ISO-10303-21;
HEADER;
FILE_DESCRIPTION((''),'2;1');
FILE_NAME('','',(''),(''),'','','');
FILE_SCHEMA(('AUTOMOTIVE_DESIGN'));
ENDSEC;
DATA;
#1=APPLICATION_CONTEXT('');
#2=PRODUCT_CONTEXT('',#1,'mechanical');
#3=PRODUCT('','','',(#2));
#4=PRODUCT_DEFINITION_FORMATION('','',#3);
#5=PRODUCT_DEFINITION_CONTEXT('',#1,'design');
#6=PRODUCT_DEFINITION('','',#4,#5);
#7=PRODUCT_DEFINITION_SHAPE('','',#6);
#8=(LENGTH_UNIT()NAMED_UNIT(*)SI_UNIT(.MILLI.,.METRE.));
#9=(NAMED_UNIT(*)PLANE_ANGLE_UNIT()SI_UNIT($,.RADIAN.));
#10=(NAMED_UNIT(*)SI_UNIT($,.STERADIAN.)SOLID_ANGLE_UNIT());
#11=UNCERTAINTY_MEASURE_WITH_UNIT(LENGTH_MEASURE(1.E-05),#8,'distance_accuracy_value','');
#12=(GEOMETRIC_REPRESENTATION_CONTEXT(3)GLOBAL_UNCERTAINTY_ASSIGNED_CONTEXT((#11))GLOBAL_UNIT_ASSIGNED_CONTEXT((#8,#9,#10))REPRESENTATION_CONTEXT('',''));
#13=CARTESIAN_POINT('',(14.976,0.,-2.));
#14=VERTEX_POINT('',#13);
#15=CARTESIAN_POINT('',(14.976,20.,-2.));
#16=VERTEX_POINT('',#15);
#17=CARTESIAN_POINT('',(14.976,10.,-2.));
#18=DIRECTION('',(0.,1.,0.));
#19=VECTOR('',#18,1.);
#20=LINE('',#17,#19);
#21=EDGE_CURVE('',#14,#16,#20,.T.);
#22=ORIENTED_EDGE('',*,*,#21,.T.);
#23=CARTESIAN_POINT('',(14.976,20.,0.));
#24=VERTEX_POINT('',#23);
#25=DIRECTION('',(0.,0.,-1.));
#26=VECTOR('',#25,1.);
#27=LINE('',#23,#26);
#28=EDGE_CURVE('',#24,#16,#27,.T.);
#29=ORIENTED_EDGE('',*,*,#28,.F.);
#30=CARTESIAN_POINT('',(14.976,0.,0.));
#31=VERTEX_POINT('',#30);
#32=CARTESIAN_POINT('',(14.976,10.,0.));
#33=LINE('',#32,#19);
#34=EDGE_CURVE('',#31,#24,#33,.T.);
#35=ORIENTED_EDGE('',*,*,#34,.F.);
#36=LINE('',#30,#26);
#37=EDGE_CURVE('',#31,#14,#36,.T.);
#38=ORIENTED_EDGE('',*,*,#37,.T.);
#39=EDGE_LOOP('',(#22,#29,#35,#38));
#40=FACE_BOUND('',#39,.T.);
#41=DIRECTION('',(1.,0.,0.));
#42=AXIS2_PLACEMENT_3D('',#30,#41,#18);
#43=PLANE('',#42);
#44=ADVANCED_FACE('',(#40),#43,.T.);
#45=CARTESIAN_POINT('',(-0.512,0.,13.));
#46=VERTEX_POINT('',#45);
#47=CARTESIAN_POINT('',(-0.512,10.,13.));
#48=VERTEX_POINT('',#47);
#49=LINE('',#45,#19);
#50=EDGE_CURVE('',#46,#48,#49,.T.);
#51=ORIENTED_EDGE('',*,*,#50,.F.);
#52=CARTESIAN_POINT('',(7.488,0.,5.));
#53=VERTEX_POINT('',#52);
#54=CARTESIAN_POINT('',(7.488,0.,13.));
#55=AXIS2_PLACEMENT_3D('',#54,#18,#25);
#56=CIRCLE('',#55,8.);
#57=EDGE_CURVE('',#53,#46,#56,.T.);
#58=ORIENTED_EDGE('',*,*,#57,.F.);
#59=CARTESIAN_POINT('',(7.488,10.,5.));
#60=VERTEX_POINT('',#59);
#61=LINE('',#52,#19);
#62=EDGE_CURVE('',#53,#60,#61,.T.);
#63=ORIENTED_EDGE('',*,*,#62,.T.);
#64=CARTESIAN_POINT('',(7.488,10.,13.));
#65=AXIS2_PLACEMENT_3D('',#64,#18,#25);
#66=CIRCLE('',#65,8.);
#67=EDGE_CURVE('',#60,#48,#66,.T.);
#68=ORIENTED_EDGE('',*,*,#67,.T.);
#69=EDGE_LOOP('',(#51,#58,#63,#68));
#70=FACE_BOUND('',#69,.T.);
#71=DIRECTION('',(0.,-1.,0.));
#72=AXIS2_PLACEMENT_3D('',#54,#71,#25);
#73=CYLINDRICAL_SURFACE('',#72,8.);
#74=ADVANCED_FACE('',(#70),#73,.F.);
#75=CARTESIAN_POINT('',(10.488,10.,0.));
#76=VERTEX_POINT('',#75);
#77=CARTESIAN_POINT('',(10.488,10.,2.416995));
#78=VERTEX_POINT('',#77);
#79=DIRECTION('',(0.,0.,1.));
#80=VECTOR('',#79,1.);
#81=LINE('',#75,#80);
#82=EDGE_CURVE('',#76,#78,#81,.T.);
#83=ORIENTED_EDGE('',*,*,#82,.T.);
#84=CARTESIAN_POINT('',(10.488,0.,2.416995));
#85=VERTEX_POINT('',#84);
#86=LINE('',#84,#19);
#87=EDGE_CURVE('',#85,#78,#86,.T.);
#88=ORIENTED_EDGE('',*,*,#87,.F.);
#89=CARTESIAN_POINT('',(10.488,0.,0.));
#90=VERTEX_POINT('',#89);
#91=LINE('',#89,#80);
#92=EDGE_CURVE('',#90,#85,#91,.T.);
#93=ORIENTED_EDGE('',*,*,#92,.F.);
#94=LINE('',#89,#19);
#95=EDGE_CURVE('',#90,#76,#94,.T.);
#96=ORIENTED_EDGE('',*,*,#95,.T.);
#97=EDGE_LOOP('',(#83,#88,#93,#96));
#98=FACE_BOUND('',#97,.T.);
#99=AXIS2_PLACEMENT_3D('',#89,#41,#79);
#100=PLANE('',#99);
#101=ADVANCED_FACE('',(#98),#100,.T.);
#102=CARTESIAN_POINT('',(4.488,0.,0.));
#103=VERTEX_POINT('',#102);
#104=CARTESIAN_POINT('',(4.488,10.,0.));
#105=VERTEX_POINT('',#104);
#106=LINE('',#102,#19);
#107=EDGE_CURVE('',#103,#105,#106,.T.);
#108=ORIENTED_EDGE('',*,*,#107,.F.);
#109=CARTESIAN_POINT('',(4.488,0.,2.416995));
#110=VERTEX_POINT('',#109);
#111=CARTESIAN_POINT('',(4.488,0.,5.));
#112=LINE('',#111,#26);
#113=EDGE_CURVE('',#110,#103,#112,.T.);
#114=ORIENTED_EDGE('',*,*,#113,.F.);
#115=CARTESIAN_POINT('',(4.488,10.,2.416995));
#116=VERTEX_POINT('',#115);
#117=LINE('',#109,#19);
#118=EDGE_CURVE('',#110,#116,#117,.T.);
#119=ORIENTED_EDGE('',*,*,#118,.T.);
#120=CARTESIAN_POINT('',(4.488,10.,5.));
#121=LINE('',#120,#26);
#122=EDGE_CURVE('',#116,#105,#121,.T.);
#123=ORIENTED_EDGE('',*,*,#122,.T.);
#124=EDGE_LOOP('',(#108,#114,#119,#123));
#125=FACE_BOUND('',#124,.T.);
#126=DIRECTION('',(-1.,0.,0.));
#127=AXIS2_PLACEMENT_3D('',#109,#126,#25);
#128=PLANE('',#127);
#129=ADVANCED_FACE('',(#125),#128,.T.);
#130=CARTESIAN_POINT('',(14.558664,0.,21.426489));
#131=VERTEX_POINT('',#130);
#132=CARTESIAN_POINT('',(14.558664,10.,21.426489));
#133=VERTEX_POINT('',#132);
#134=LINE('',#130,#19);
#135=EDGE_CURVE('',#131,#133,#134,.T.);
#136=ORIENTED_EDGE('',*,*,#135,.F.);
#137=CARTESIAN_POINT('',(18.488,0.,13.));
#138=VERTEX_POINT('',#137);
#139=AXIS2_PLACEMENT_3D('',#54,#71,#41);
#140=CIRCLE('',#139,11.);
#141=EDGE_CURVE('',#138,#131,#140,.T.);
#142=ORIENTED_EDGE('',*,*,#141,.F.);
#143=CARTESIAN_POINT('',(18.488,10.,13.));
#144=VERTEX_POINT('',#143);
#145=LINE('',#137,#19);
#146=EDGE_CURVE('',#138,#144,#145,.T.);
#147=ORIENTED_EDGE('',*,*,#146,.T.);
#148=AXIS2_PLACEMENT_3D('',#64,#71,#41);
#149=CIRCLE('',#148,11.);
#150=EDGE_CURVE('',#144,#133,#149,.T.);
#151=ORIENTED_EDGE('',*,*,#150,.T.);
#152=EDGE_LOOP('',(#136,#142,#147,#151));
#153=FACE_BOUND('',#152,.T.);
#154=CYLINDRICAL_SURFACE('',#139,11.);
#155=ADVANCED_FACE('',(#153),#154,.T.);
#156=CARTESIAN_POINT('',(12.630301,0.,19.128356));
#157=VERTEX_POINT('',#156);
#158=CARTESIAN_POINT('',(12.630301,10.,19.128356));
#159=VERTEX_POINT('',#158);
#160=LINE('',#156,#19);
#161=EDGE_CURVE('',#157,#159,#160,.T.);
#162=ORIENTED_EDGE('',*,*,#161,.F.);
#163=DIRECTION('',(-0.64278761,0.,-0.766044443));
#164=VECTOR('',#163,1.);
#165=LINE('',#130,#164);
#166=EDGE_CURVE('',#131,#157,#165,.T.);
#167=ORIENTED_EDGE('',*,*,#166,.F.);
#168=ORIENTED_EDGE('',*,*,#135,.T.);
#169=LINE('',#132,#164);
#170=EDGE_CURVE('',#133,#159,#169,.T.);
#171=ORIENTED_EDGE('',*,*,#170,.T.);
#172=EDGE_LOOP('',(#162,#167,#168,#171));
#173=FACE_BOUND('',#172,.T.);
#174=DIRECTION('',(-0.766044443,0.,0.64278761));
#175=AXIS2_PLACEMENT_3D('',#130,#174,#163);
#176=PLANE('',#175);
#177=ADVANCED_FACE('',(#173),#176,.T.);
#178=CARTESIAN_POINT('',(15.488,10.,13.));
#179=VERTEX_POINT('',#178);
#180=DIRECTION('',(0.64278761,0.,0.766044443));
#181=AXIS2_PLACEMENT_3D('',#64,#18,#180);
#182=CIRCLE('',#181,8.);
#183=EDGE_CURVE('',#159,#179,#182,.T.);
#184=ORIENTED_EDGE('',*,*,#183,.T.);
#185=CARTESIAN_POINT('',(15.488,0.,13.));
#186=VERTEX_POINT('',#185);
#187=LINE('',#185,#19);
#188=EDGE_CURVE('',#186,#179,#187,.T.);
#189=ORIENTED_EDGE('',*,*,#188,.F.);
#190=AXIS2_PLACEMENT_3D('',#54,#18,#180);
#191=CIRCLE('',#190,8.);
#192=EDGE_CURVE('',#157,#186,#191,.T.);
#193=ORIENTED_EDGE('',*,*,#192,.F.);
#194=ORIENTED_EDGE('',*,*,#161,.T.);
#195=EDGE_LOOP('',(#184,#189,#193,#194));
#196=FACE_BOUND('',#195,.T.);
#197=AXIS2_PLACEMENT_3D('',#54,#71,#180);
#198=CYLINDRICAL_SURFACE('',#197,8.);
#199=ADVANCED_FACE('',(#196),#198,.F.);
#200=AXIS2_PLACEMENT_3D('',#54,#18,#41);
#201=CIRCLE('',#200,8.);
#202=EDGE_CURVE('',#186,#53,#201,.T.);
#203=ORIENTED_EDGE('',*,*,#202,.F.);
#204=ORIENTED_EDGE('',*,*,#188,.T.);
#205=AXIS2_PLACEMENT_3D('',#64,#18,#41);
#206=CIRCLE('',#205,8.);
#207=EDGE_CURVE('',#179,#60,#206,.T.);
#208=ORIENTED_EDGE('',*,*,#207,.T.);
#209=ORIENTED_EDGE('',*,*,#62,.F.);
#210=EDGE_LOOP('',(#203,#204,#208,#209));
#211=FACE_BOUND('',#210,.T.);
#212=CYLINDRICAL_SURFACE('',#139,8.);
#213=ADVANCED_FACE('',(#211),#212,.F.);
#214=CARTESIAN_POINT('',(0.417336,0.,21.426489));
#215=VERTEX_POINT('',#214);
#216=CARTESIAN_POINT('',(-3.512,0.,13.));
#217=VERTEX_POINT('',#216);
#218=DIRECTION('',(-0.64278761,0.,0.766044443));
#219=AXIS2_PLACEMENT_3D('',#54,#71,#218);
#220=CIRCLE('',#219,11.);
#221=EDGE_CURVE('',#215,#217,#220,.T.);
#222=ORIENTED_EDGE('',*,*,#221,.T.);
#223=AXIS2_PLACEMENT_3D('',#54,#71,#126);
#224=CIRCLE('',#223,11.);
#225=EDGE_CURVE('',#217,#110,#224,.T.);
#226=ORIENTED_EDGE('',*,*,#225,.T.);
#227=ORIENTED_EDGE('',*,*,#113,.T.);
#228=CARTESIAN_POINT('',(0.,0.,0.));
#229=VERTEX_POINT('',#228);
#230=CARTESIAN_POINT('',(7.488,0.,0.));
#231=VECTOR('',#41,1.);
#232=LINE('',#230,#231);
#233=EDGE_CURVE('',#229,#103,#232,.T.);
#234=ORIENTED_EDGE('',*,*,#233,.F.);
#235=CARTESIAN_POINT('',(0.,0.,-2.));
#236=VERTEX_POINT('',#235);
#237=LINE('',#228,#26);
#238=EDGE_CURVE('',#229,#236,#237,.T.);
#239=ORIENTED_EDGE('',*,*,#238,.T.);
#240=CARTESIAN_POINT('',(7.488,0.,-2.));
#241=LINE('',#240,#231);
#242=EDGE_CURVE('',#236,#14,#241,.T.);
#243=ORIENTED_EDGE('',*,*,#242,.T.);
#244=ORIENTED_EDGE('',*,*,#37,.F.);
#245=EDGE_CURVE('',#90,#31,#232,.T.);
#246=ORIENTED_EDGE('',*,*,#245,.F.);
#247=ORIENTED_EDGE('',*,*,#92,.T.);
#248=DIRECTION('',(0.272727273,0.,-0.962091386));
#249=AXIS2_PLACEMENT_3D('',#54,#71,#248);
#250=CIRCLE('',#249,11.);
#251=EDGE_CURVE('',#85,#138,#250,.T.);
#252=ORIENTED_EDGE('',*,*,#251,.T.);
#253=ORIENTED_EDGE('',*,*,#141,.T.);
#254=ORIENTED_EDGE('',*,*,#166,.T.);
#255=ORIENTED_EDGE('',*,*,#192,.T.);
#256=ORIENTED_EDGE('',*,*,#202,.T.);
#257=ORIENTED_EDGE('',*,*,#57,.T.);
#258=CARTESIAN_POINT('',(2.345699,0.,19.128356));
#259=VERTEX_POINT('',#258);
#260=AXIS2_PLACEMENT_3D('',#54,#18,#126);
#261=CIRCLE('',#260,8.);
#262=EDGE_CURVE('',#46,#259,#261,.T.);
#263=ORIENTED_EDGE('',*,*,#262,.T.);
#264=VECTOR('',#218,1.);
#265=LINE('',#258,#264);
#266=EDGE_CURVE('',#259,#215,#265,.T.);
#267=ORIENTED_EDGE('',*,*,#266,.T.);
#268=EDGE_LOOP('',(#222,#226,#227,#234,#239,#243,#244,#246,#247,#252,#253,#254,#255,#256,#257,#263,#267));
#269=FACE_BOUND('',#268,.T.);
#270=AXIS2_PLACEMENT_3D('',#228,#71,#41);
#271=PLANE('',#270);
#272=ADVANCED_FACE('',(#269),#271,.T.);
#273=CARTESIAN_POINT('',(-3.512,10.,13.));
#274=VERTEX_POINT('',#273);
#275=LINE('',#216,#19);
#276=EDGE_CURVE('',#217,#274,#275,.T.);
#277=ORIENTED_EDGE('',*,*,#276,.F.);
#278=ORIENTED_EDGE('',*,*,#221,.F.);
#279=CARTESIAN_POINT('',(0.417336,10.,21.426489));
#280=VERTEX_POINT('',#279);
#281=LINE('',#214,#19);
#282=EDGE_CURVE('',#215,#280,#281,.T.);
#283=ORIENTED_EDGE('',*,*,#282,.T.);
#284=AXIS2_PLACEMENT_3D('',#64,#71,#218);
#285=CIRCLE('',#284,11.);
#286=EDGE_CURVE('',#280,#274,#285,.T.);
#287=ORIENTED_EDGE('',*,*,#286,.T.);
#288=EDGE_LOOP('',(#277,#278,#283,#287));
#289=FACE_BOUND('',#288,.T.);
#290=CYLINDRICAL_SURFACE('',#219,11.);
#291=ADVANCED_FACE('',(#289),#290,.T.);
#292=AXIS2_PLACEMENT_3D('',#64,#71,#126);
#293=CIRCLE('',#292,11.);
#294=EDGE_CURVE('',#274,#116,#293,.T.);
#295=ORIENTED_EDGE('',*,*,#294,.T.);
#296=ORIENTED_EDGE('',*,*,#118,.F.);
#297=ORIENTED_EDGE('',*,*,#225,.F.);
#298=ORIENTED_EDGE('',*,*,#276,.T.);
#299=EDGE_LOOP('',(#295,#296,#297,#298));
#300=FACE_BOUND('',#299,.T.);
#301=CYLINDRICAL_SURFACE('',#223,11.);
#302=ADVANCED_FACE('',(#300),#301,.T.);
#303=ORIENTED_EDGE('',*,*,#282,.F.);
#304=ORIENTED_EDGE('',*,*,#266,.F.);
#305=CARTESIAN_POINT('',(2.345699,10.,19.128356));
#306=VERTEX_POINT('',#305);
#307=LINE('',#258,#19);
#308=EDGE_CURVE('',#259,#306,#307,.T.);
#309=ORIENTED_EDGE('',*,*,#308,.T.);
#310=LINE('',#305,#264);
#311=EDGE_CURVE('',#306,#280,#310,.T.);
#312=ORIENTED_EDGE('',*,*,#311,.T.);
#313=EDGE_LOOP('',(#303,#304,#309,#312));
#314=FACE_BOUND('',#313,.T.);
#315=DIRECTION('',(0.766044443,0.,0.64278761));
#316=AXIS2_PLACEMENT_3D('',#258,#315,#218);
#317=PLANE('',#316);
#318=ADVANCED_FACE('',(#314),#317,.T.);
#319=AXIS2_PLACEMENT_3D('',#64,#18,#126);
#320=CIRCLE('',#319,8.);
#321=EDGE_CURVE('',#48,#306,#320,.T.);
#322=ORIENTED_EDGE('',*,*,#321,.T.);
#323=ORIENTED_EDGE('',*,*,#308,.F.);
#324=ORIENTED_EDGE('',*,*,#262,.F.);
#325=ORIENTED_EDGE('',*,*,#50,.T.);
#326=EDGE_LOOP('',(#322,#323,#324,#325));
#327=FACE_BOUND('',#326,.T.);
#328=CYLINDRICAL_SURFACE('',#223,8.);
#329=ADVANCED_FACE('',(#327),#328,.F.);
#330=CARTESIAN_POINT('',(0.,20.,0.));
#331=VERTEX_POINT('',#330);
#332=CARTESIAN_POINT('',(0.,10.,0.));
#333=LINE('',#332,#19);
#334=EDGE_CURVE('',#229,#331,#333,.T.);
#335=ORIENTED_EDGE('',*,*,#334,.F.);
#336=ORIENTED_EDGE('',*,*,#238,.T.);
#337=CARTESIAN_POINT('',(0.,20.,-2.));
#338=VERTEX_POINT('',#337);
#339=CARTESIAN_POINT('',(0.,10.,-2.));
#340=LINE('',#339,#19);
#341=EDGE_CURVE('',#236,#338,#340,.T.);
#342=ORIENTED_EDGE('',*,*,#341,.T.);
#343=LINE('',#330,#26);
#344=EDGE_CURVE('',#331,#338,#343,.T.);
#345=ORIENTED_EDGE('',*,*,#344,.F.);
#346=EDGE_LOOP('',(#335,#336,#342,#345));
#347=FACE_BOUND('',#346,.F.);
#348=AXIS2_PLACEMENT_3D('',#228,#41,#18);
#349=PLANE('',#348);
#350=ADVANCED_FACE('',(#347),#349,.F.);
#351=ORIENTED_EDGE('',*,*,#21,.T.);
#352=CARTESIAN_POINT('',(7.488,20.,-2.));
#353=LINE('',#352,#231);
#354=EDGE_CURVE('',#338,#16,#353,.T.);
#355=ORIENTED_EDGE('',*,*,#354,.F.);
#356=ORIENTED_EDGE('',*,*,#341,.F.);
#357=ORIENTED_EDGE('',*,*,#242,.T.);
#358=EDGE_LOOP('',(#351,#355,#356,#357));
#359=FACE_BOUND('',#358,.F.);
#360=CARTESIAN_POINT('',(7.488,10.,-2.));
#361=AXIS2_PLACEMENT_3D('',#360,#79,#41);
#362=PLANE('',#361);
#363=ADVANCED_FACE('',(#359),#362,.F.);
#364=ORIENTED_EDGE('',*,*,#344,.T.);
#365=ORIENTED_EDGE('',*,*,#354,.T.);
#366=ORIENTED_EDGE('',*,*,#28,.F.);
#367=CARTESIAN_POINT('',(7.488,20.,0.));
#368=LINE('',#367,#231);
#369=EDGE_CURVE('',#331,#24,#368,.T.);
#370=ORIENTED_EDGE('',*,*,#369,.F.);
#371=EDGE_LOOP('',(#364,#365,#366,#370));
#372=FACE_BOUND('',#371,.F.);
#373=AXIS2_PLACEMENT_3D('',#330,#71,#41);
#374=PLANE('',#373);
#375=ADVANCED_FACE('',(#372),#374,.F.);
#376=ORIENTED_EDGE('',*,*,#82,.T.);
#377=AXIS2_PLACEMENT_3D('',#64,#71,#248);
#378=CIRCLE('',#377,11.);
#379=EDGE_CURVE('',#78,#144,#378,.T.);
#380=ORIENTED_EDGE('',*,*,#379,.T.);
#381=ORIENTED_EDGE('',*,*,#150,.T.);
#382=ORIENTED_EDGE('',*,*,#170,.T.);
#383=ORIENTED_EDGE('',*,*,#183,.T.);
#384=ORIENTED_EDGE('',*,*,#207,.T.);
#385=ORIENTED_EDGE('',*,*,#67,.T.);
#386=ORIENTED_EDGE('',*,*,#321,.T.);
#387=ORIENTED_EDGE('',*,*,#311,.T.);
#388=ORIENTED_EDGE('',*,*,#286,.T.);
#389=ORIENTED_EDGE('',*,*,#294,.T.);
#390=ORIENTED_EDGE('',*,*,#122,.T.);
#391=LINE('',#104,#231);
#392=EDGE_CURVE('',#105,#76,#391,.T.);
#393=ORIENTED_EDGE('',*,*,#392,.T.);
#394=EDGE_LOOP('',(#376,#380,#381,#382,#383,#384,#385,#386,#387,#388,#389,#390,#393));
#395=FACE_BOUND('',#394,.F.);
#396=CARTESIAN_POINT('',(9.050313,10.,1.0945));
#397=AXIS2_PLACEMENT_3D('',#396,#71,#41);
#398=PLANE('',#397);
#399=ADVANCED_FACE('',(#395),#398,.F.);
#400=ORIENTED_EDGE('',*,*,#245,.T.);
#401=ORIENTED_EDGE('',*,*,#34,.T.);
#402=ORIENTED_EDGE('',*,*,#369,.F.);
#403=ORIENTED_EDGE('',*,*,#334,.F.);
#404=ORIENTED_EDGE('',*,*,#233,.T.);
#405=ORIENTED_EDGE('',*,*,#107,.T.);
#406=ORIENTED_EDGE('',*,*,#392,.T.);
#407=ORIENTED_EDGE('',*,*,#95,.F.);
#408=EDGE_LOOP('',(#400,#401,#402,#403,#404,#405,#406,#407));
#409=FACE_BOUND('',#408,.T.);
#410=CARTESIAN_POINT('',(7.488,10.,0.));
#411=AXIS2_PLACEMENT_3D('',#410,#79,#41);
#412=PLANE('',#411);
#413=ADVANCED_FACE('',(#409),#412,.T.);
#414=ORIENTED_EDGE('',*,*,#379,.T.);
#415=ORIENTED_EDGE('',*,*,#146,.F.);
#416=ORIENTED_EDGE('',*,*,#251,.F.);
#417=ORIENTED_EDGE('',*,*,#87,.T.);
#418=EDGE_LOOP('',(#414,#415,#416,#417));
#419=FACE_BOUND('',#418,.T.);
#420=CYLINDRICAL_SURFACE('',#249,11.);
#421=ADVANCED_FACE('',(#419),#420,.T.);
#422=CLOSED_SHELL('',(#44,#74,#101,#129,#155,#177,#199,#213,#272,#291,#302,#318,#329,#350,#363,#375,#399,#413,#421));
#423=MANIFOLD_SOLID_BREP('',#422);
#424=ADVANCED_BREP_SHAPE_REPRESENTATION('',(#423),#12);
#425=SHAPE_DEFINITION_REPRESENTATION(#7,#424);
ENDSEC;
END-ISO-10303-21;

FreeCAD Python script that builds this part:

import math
import FreeCAD as App
import Part
import Sketcher
from FreeCAD import Vector
Q = App.Units.Quantity

doc = App.newDocument("Part")
body = doc.addObject("PartDesign::Body", "Body")

# Sketch on XY plane
sketch1 = doc.addObject("Sketcher::SketchObject", "Sketch")
body.addObject(sketch1)
sketch1.AttachmentSupport = (doc.XY_Plane, [""])
sketch1.MapMode = "FlatFace"
sketch1.addGeometry(Part.LineSegment(Vector(0, 20, 0), Vector(0, 0, 0)), False)
sketch1.addGeometry(Part.LineSegment(Vector(0, 0, 0), Vector(15, 0, 0)), False)
sketch1.addGeometry(Part.LineSegment(Vector(15, 0, 0), Vector(15, 20, 0)), False)
sketch1.addGeometry(Part.LineSegment(Vector(15, 20, 0), Vector(0, 20, 0)), False)
sketch1.addConstraint(Sketcher.Constraint("Coincident", 0, 2, 1, 1))
sketch1.addConstraint(Sketcher.Constraint("Coincident", 1, 2, 2, 1))
sketch1.addConstraint(Sketcher.Constraint("Coincident", 2, 2, 3, 1))
sketch1.addConstraint(Sketcher.Constraint("Coincident", 3, 2, 0, 1))
sketch1.addConstraint(Sketcher.Constraint("Vertical", 0))
sketch1.addConstraint(Sketcher.Constraint("Horizontal", 1))
sketch1.addConstraint(Sketcher.Constraint("Vertical", 2))
sketch1.addConstraint(Sketcher.Constraint("Horizontal", 3))
sketch1.addConstraint(Sketcher.Constraint("Coincident", 0, 2, -1, 1))
sketch1.addConstraint(Sketcher.Constraint("DistanceY", 0, 2, 0, 1, Q("20 mm")))
sketch1.addConstraint(Sketcher.Constraint("DistanceX", 1, 1, 1, 2, Q("14.976 mm")))
pad1 = doc.addObject("PartDesign::Pad", "Pad")
body.addObject(pad1)
pad1.Profile = sketch1
pad1.Length = 2
pad1.Reversed = True

# Sketch on XZ plane
sketch2 = doc.addObject("Sketcher::SketchObject", "Sketch001")
body.addObject(sketch2)
sketch2.AttachmentSupport = (doc.XZ_Plane, [""])
sketch2.MapMode = "FlatFace"
sketch2.addGeometry(Part.LineSegment(Vector(10.5, 0, 0), Vector(10.5, 2.4, 0)), False)
sketch2.addGeometry(Part.ArcOfCircle(Part.Circle(Vector(7.5, 13, 0), Vector(0, 0, 1), 11), math.radians(-74), math.radians(0)), False)
sketch2.addGeometry(Part.ArcOfCircle(Part.Circle(Vector(7.5, 13, 0), Vector(0, 0, 1), 11), math.radians(0), math.radians(50)), False)
sketch2.addGeometry(Part.LineSegment(Vector(14.6, 21.4, 0), Vector(12.6, 19.1, 0)), False)
sketch2.addGeometry(Part.ArcOfCircle(Part.Circle(Vector(7.5, 13, 0), Vector(0, 0, 1), 8), math.radians(0), math.radians(50)), False)
sketch2.addGeometry(Part.ArcOfCircle(Part.Circle(Vector(7.5, 13, 0), Vector(0, 0, 1), 8), math.radians(-90), math.radians(0)), False)
sketch2.addGeometry(Part.ArcOfCircle(Part.Circle(Vector(7.5, 13, 0), Vector(0, 0, 1), 8), math.radians(180), math.radians(270)), False)
sketch2.addGeometry(Part.ArcOfCircle(Part.Circle(Vector(7.5, 13, 0), Vector(0, 0, 1), 8), math.radians(130), math.radians(180)), False)
sketch2.addGeometry(Part.LineSegment(Vector(2.3, 19.1, 0), Vector(0.4, 21.4, 0)), False)
sketch2.addGeometry(Part.ArcOfCircle(Part.Circle(Vector(7.5, 13, 0), Vector(0, 0, 1), 11), math.radians(130), math.radians(180)), False)
sketch2.addGeometry(Part.ArcOfCircle(Part.Circle(Vector(7.5, 13, 0), Vector(0, 0, 1), 11), math.radians(180), math.radians(254)), False)
sketch2.addGeometry(Part.LineSegment(Vector(4.5, 2.4, 0), Vector(4.5, 0, 0)), False)
sketch2.addGeometry(Part.LineSegment(Vector(4.5, 0, 0), Vector(10.5, 0, 0)), False)
sketch2.addConstraint(Sketcher.Constraint("Coincident", 0, 2, 1, 1))
sketch2.addConstraint(Sketcher.Constraint("Tangent", 1, 2, 2, 1))
sketch2.addConstraint(Sketcher.Constraint("Coincident", 2, 2, 3, 1))
sketch2.addConstraint(Sketcher.Constraint("Coincident", 3, 2, 4, 2))
sketch2.addConstraint(Sketcher.Constraint("Tangent", 4, 1, 5, 2))
sketch2.addConstraint(Sketcher.Constraint("Tangent", 5, 1, 6, 2))
sketch2.addConstraint(Sketcher.Constraint("Tangent", 6, 1, 7, 2))
sketch2.addConstraint(Sketcher.Constraint("Coincident", 7, 1, 8, 1))
sketch2.addConstraint(Sketcher.Constraint("Coincident", 8, 2, 9, 1))
sketch2.addConstraint(Sketcher.Constraint("Tangent", 9, 2, 10, 1))
sketch2.addConstraint(Sketcher.Constraint("Coincident", 10, 2, 11, 1))
sketch2.addConstraint(Sketcher.Constraint("Coincident", 11, 2, 12, 1))
sketch2.addConstraint(Sketcher.Constraint("Coincident", 12, 2, 0, 1))
sketch2.addConstraint(Sketcher.Constraint("Vertical", 0))
sketch2.addConstraint(Sketcher.Constraint("Vertical", 11))
sketch2.addConstraint(Sketcher.Constraint("Horizontal", 12))
sketch2.addConstraint(Sketcher.Constraint("Coincident", 4, 3, 1, 3))
sketch2.addConstraint(Sketcher.Constraint("Coincident", 6, 3, 1, 3))
sketch2.addConstraint(Sketcher.Constraint("Coincident", 9, 3, 1, 3))
sketch2.addConstraint(Sketcher.Constraint("Equal", 1, 2))
sketch2.addConstraint(Sketcher.Constraint("Equal", 6, 7))
sketch2.addConstraint(Sketcher.Constraint("Equal", 2, 9))
sketch2.addConstraint(Sketcher.Constraint("Equal", 9, 10))
sketch2.addConstraint(Sketcher.Constraint("PointOnObject", 11, 2, -1))
sketch2.addConstraint(Sketcher.Constraint("Horizontal", 10, 3, 1, 2))
sketch2.addConstraint(Sketcher.Constraint("Horizontal", 1, 2, 4, 1))
sketch2.addConstraint(Sketcher.Constraint("Horizontal", 4, 1, 6, 1))
sketch2.addConstraint(Sketcher.Constraint("Horizontal", 3, 2, 7, 1))
sketch2.addConstraint(Sketcher.Constraint("Horizontal", 2, 2, 8, 2))
sketch2.addConstraint(Sketcher.Constraint("Horizontal", 6, 1, 9, 2))
sketch2.addConstraint(Sketcher.Constraint("Horizontal", 0, 2, 10, 2))
sketch2.addConstraint(Sketcher.Constraint("Vertical", 10, 3, 5, 1))
sketch2.addConstraint(Sketcher.Constraint("Radius", 1, Q("11 mm")))
sketch2.addConstraint(Sketcher.Constraint("Radius", 4, Q("8 mm")))
sketch2.addConstraint(Sketcher.Constraint("DistanceX", 12, 1, 12, 2, Q("6 mm")))
sketch2.addConstraint(Sketcher.Constraint("Angle", 3, Q("-130 deg")))
sketch2.addConstraint(Sketcher.Constraint("DistanceY", -1, 1, 1, 3, Q("13 mm")))
sketch2.addConstraint(Sketcher.Constraint("DistanceX", -1, 1, 1, 3, Q("7.488 mm")))
sketch2.addConstraint(Sketcher.Constraint("DistanceX", -1, 1, 3, 2, Q("12.630301 mm")))
pad2 = doc.addObject("PartDesign::Pad", "Pad001")
body.addObject(pad2)
pad2.Profile = sketch2
pad2.Length = 10
pad2.Reversed = True

doc.recompute()
